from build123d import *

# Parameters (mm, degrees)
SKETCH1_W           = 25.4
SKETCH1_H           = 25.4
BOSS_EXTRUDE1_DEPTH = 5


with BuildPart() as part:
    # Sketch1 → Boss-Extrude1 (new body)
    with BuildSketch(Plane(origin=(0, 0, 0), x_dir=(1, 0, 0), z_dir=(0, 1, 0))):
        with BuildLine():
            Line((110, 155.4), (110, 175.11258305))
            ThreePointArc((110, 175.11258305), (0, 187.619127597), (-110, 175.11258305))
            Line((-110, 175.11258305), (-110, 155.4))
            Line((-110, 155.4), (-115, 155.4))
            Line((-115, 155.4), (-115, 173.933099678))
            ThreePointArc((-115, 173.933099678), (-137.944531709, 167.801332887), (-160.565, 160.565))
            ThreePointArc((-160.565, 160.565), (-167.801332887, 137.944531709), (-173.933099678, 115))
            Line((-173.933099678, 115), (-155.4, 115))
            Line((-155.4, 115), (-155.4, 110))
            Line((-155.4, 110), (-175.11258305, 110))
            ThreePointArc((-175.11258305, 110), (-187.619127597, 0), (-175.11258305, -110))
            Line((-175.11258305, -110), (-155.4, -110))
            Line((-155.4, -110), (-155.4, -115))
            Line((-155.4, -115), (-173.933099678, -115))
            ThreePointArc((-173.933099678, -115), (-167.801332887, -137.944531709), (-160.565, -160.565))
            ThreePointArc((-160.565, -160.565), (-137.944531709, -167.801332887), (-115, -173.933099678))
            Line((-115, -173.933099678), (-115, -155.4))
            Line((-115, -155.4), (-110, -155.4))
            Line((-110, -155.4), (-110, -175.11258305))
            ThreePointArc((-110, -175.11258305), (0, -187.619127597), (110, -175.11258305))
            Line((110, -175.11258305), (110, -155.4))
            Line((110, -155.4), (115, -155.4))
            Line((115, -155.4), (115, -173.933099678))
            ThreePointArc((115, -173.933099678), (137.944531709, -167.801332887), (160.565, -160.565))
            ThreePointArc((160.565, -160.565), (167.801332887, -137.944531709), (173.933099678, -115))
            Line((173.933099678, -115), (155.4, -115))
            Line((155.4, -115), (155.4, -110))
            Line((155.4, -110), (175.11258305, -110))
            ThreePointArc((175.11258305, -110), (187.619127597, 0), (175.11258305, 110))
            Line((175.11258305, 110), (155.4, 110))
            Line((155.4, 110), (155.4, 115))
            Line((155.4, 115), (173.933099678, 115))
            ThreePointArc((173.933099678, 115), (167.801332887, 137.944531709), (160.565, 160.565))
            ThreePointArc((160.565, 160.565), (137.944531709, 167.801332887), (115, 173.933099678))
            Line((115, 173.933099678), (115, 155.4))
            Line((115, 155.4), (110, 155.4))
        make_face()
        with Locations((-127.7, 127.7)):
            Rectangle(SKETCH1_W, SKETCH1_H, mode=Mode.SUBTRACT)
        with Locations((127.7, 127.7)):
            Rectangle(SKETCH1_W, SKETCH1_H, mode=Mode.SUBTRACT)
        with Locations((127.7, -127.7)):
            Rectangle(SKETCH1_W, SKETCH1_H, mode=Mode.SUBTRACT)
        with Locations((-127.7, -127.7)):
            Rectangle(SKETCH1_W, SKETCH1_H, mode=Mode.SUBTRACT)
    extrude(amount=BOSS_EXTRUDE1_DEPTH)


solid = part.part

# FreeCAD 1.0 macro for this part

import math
import FreeCAD as App
import Part
import Sketcher
from FreeCAD import Vector


def add_polygon(sketch, points):
    """Adds a closed chain of lines whose ends are joined by coincident constraints."""
    first, n = sketch.GeometryCount, len(points)
    for a, b in zip(points, points[1:] + points[:1]):
        sketch.addGeometry(Part.LineSegment(App.Vector(*a, 0), App.Vector(*b, 0)), False)
    for i in range(n):
        sketch.addConstraint(Sketcher.Constraint("Coincident", first + i, 2, first + (i + 1) % n, 1))

doc = App.newDocument("Part")
params = doc.addObject("Spreadsheet::Sheet", "Params")
for row, (alias, value) in enumerate([
    ("sketch1_radius", "490 mm"),
    ("sketch1_width", "5 mm"),
    ("sketch1_width2", "25.4 mm"),
    ("pad1_length", "5 mm"),
], start=1):
    params.set(f"A{row}", alias)
    params.set(f"B{row}", "=" + value)
    params.setAlias(f"B{row}", alias)

body = doc.addObject("PartDesign::Body", "Body")

sketch1 = body.newObject("Sketcher::SketchObject", "Sketch")
sketch1.AttachmentSupport = (doc.getObject("XZ_Plane"), [""])
sketch1.MapMode = "FlatFace"
sketch1.addGeometry(Part.LineSegment(Vector(110, -155, 0), Vector(110, -175, 0)), False)
sketch1.addGeometry(Part.ArcOfCircle(Part.Circle(Vector(0, 302, 0), Vector(0, 0, 1), 490), math.radians(-103), math.radians(-77)), False)
sketch1.addGeometry(Part.LineSegment(Vector(-110, -175, 0), Vector(-110, -155, 0)), False)
sketch1.addGeometry(Part.LineSegment(Vector(-110, -155, 0), Vector(-115, -155, 0)), False)
sketch1.addGeometry(Part.LineSegment(Vector(-115, -155, 0), Vector(-115, -174, 0)), False)
sketch1.addGeometry(Part.ArcOfCircle(Part.Circle(Vector(0, 302, 0), Vector(0, 0, 1), 490), math.radians(-109.13), math.radians(-103.57)), False)
sketch1.addGeometry(Part.ArcOfCircle(Part.Circle(Vector(302, 0, 0), Vector(0, 0, 1), 490), math.radians(-166.43), math.radians(-160.87)), False)
sketch1.addGeometry(Part.LineSegment(Vector(-174, -115, 0), Vector(-155, -115, 0)), False)
sketch1.addGeometry(Part.LineSegment(Vector(-155, -115, 0), Vector(-155, -110, 0)), False)
sketch1.addGeometry(Part.LineSegment(Vector(-155, -110, 0), Vector(-175, -110, 0)), False)
sketch1.addGeometry(Part.ArcOfCircle(Part.Circle(Vector(302, 0, 0), Vector(0, 0, 1), 490), math.radians(167), math.radians(193)), False)
sketch1.addGeometry(Part.LineSegment(Vector(-175, 110, 0), Vector(-155, 110, 0)), False)
sketch1.addGeometry(Part.LineSegment(Vector(-155, 110, 0), Vector(-155, 115, 0)), False)
sketch1.addGeometry(Part.LineSegment(Vector(-155, 115, 0), Vector(-174, 115, 0)), False)
sketch1.addGeometry(Part.ArcOfCircle(Part.Circle(Vector(302, 0, 0), Vector(0, 0, 1), 490), math.radians(160.87), math.radians(166.43)), False)
sketch1.addGeometry(Part.ArcOfCircle(Part.Circle(Vector(0, -302, 0), Vector(0, 0, 1), 490), math.radians(103.57), math.radians(109.13)), False)
sketch1.addGeometry(Part.LineSegment(Vector(-115, 174, 0), Vector(-115, 155, 0)), False)
sketch1.addGeometry(Part.LineSegment(Vector(-115, 155, 0), Vector(-110, 155, 0)), False)
sketch1.addGeometry(Part.LineSegment(Vector(-110, 155, 0), Vector(-110, 175, 0)), False)
sketch1.addGeometry(Part.ArcOfCircle(Part.Circle(Vector(0, -302, 0), Vector(0, 0, 1), 490), math.radians(77), math.radians(103)), False)
sketch1.addGeometry(Part.LineSegment(Vector(110, 175, 0), Vector(110, 155, 0)), False)
sketch1.addGeometry(Part.LineSegment(Vector(110, 155, 0), Vector(115, 155, 0)), False)
sketch1.addGeometry(Part.LineSegment(Vector(115, 155, 0), Vector(115, 174, 0)), False)
sketch1.addGeometry(Part.ArcOfCircle(Part.Circle(Vector(0, -302, 0), Vector(0, 0, 1), 490), math.radians(70.87), math.radians(76.43)), False)
sketch1.addGeometry(Part.ArcOfCircle(Part.Circle(Vector(-302, 0, 0), Vector(0, 0, 1), 490), math.radians(13.57), math.radians(19.13)), False)
sketch1.addGeometry(Part.LineSegment(Vector(174, 115, 0), Vector(155, 115, 0)), False)
sketch1.addGeometry(Part.LineSegment(Vector(155, 115, 0), Vector(155, 110, 0)), False)
sketch1.addGeometry(Part.LineSegment(Vector(155, 110, 0), Vector(175, 110, 0)), False)
sketch1.addGeometry(Part.ArcOfCircle(Part.Circle(Vector(-302, 0, 0), Vector(0, 0, 1), 490), math.radians(-13), math.radians(13)), False)
sketch1.addGeometry(Part.LineSegment(Vector(175, -110, 0), Vector(155, -110, 0)), False)
sketch1.addGeometry(Part.LineSegment(Vector(155, -110, 0), Vector(155, -115, 0)), False)
sketch1.addGeometry(Part.LineSegment(Vector(155, -115, 0), Vector(174, -115, 0)), False)
sketch1.addGeometry(Part.ArcOfCircle(Part.Circle(Vector(-302, 0, 0), Vector(0, 0, 1), 490), math.radians(-19.13), math.radians(-13.57)), False)
sketch1.addGeometry(Part.ArcOfCircle(Part.Circle(Vector(0, 302, 0), Vector(0, 0, 1), 490), math.radians(-76.43), math.radians(-70.87)), False)
sketch1.addGeometry(Part.LineSegment(Vector(115, -174, 0), Vector(115, -155, 0)), False)
sketch1.addGeometry(Part.LineSegment(Vector(115, -155, 0), Vector(110, -155, 0)), False)
add_polygon(sketch1, [(-115, 140), (-140, 140), (-140, 115), (-115, 115)])
add_polygon(sketch1, [(140, 140), (115, 140), (115, 115), (140, 115)])
add_polygon(sketch1, [(-115, -115), (-140, -115), (-140, -140), (-115, -140)])
add_polygon(sketch1, [(140, -115), (115, -115), (115, -140), (140, -140)])
sketch1.addConstraint(Sketcher.Constraint("Coincident", 0, 2, 1, 2))
sketch1.addConstraint(Sketcher.Constraint("Coincident", 1, 1, 2, 1))
sketch1.addConstraint(Sketcher.Constraint("Coincident", 2, 2, 3, 1))
sketch1.addConstraint(Sketcher.Constraint("Coincident", 3, 2, 4, 1))
sketch1.addConstraint(Sketcher.Constraint("Coincident", 4, 2, 5, 2))
sketch1.addConstraint(Sketcher.Constraint("Coincident", 5, 1, 6, 2))
sketch1.addConstraint(Sketcher.Constraint("Coincident", 6, 1, 7, 1))
sketch1.addConstraint(Sketcher.Constraint("Coincident", 7, 2, 8, 1))
sketch1.addConstraint(Sketcher.Constraint("Coincident", 8, 2, 9, 1))
sketch1.addConstraint(Sketcher.Constraint("Coincident", 9, 2, 10, 2))
sketch1.addConstraint(Sketcher.Constraint("Coincident", 10, 1, 11, 1))
sketch1.addConstraint(Sketcher.Constraint("Coincident", 11, 2, 12, 1))
sketch1.addConstraint(Sketcher.Constraint("Coincident", 12, 2, 13, 1))
sketch1.addConstraint(Sketcher.Constraint("Coincident", 13, 2, 14, 2))
sketch1.addConstraint(Sketcher.Constraint("Coincident", 14, 1, 15, 2))
sketch1.addConstraint(Sketcher.Constraint("Coincident", 15, 1, 16, 1))
sketch1.addConstraint(Sketcher.Constraint("Coincident", 16, 2, 17, 1))
sketch1.addConstraint(Sketcher.Constraint("Coincident", 17, 2, 18, 1))
sketch1.addConstraint(Sketcher.Constraint("Coincident", 18, 2, 19, 2))
sketch1.addConstraint(Sketcher.Constraint("Coincident", 19, 1, 20, 1))
sketch1.addConstraint(Sketcher.Constraint("Coincident", 20, 2, 21, 1))
sketch1.addConstraint(Sketcher.Constraint("Coincident", 21, 2, 22, 1))
sketch1.addConstraint(Sketcher.Constraint("Coincident", 22, 2, 23, 2))
sketch1.addConstraint(Sketcher.Constraint("Coincident", 23, 1, 24, 2))
sketch1.addConstraint(Sketcher.Constraint("Coincident", 24, 1, 25, 1))
sketch1.addConstraint(Sketcher.Constraint("Coincident", 25, 2, 26, 1))
sketch1.addConstraint(Sketcher.Constraint("Coincident", 26, 2, 27, 1))
sketch1.addConstraint(Sketcher.Constraint("Coincident", 27, 2, 28, 2))
sketch1.addConstraint(Sketcher.Constraint("Coincident", 28, 1, 29, 1))
sketch1.addConstraint(Sketcher.Constraint("Coincident", 29, 2, 30, 1))
sketch1.addConstraint(Sketcher.Constraint("Coincident", 30, 2, 31, 1))
sketch1.addConstraint(Sketcher.Constraint("Coincident", 31, 2, 32, 2))
sketch1.addConstraint(Sketcher.Constraint("Coincident", 32, 1, 33, 2))
sketch1.addConstraint(Sketcher.Constraint("Coincident", 33, 1, 34, 1))
sketch1.addConstraint(Sketcher.Constraint("Coincident", 34, 2, 35, 1))
sketch1.addConstraint(Sketcher.Constraint("Coincident", 35, 2, 0, 1))
sketch1.addConstraint(Sketcher.Constraint("Vertical", 0))
sketch1.addConstraint(Sketcher.Constraint("Vertical", 2))
sketch1.addConstraint(Sketcher.Constraint("Horizontal", 3))
sketch1.addConstraint(Sketcher.Constraint("Vertical", 4))
sketch1.addConstraint(Sketcher.Constraint("Horizontal", 7))
sketch1.addConstraint(Sketcher.Constraint("Vertical", 8))
sketch1.addConstraint(Sketcher.Constraint("Horizontal", 9))
sketch1.addConstraint(Sketcher.Constraint("Horizontal", 11))
sketch1.addConstraint(Sketcher.Constraint("Vertical", 12))
sketch1.addConstraint(Sketcher.Constraint("Horizontal", 13))
sketch1.addConstraint(Sketcher.Constraint("Vertical", 16))
sketch1.addConstraint(Sketcher.Constraint("Horizontal", 17))
sketch1.addConstraint(Sketcher.Constraint("Vertical", 18))
sketch1.addConstraint(Sketcher.Constraint("Vertical", 20))
sketch1.addConstraint(Sketcher.Constraint("Horizontal", 21))
sketch1.addConstraint(Sketcher.Constraint("Vertical", 22))
sketch1.addConstraint(Sketcher.Constraint("Horizontal", 25))
sketch1.addConstraint(Sketcher.Constraint("Vertical", 26))
sketch1.addConstraint(Sketcher.Constraint("Horizontal", 27))
sketch1.addConstraint(Sketcher.Constraint("Horizontal", 29))
sketch1.addConstraint(Sketcher.Constraint("Vertical", 30))
sketch1.addConstraint(Sketcher.Constraint("Horizontal", 31))
sketch1.addConstraint(Sketcher.Constraint("Vertical", 34))
sketch1.addConstraint(Sketcher.Constraint("Horizontal", 35))
sketch1.addConstraint(Sketcher.Constraint("Horizontal", 36))
sketch1.addConstraint(Sketcher.Constraint("Vertical", 37))
sketch1.addConstraint(Sketcher.Constraint("Horizontal", 38))
sketch1.addConstraint(Sketcher.Constraint("Vertical", 39))
sketch1.addConstraint(Sketcher.Constraint("Horizontal", 40))
sketch1.addConstraint(Sketcher.Constraint("Vertical", 41))
sketch1.addConstraint(Sketcher.Constraint("Horizontal", 42))
sketch1.addConstraint(Sketcher.Constraint("Vertical", 43))
sketch1.addConstraint(Sketcher.Constraint("Horizontal", 44))
sketch1.addConstraint(Sketcher.Constraint("Vertical", 45))
sketch1.addConstraint(Sketcher.Constraint("Horizontal", 46))
sketch1.addConstraint(Sketcher.Constraint("Vertical", 47))
sketch1.addConstraint(Sketcher.Constraint("Horizontal", 48))
sketch1.addConstraint(Sketcher.Constraint("Vertical", 49))
sketch1.addConstraint(Sketcher.Constraint("Horizontal", 50))
sketch1.addConstraint(Sketcher.Constraint("Vertical", 51))
sketch1.addConstraint(Sketcher.Constraint("Coincident", 5, 3, 1, 3))
sketch1.addConstraint(Sketcher.Constraint("Coincident", 10, 3, 6, 3))
sketch1.addConstraint(Sketcher.Constraint("Coincident", 14, 3, 6, 3))
sketch1.addConstraint(Sketcher.Constraint("Coincident", 19, 3, 15, 3))
sketch1.addConstraint(Sketcher.Constraint("Coincident", 23, 3, 15, 3))
sketch1.addConstraint(Sketcher.Constraint("Coincident", 28, 3, 24, 3))
sketch1.addConstraint(Sketcher.Constraint("Coincident", 32, 3, 24, 3))
sketch1.addConstraint(Sketcher.Constraint("Coincident", 33, 3, 1, 3))
sketch1.addConstraint(Sketcher.Constraint("Equal", 1, 5))
sketch1.addConstraint(Sketcher.Constraint("Equal", 5, 6))
sketch1.addConstraint(Sketcher.Constraint("Equal", 6, 10))
sketch1.addConstraint(Sketcher.Constraint("Equal", 10, 14))
sketch1.addConstraint(Sketcher.Constraint("Equal", 14, 15))
sketch1.addConstraint(Sketcher.Constraint("Equal", 15, 19))
sketch1.addConstraint(Sketcher.Constraint("Equal", 19, 23))
sketch1.addConstraint(Sketcher.Constraint("Equal", 23, 24))
sketch1.addConstraint(Sketcher.Constraint("Equal", 24, 28))
sketch1.addConstraint(Sketcher.Constraint("Equal", 28, 32))
sketch1.addConstraint(Sketcher.Constraint("Equal", 32, 33))
sketch1.addConstraint(Sketcher.Constraint("Symmetric", 1, 3, 15, 3, -1, 1))
sketch1.addConstraint(Sketcher.Constraint("Symmetric", 6, 3, 24, 3, -1, 1))
sketch1.addConstraint(Sketcher.Constraint("Symmetric", 2, 2, 20, 2, -1, 1))
sketch1.addConstraint(Sketcher.Constraint("Symmetric", 7, 2, 25, 2, -1, 1))
sketch1.addConstraint(Sketcher.Constraint("Symmetric", 11, 2, 29, 2, -1, 1))
sketch1.addConstraint(Sketcher.Constraint("Symmetric", 16, 2, 34, 2, -1, 1))
sketch1.addConstraint(Sketcher.Constraint("Symmetric", 42, 2, 44, 2, -1, 1))
sketch1.addConstraint(Sketcher.Constraint("Symmetric", 40, 2, 46, 2, -1, 1))
sketch1.addConstraint(Sketcher.Constraint("Symmetric", 38, 2, 48, 2, -1, 1))
sketch1.addConstraint(Sketcher.Constraint("Symmetric", 36, 2, 50, 2, -1, 1))
sketch1.addConstraint(Sketcher.Constraint("Symmetric", 17, 2, 20, 2, -2))
sketch1.addConstraint(Sketcher.Constraint("Symmetric", 12, 2, 25, 2, -2))
sketch1.addConstraint(Sketcher.Constraint("Symmetric", 39, 2, 40, 2, -2))
sketch1.addConstraint(Sketcher.Constraint("Symmetric", 37, 2, 42, 2, -2))
sketch1.addConstraint(Sketcher.Constraint("PointOnObject", 1, 3, -2))
sketch1.addConstraint(Sketcher.Constraint("PointOnObject", 6, 3, -1))
sketch1.addConstraint(Sketcher.Constraint("Horizontal", 11, 2, 26, 2))
sketch1.addConstraint(Sketcher.Constraint("Horizontal", 7, 2, 30, 2))
sketch1.addConstraint(Sketcher.Constraint("Horizontal", 25, 2, 37, 2))
sketch1.addConstraint(Sketcher.Constraint("Vertical", 20, 2, 35, 2))
sketch1.addConstraint(Sketcher.Constraint("Vertical", 16, 2, 38, 2))
sketch1.addConstraint(Sketcher.Constraint("Equal", 9, 11))
sketch1.addConstraint(Sketcher.Constraint("Equal", 3, 17))
sketch1.addConstraint(Sketcher.Constraint("Equal", 17, 21))
sketch1.addConstraint(Sketcher.Constraint("Equal", 29, 0))
sketch1.addConstraint(Sketcher.Constraint("Equal", 31, 4))
sketch1.addConstraint(Sketcher.Constraint("Equal", 35, 8))
sketch1.addConstraint(Sketcher.Constraint("Equal", 50, 37))
sketch1.addConstraint(Sketcher.Constraint("Radius", 1, 490.0))
sketch1.addConstraint(Sketcher.Constraint("DistanceX", 3, 2, 3, 1, 5.0))
sketch1.addConstraint(Sketcher.Constraint("DistanceX", 36, 2, 36, 1, 25.4))
sketch1.addConstraint(Sketcher.Constraint("DistanceX", -1, 1, 0, 2, 110.0))
sketch1.addConstraint(Sketcher.Constraint("DistanceY", 2, 2, -1, 1, 155.4))
sketch1.addConstraint(Sketcher.Constraint("DistanceX", 7, 2, -1, 1, 155.4))
sketch1.addConstraint(Sketcher.Constraint("DistanceX", 7, 1, 7, 2, 18.5331))
sketch1.setExpression("Constraints[139]", "Params.sketch1_radius")
sketch1.setExpression("Constraints[140]", "Params.sketch1_width")
sketch1.setExpression("Constraints[141]", "Params.sketch1_width2")
pad1 = body.newObject("PartDesign::Pad", "Pad")
pad1.Profile = sketch1
pad1.setExpression("Length", "Params.pad1_length")
pad1.Reversed = True

doc.recompute()
